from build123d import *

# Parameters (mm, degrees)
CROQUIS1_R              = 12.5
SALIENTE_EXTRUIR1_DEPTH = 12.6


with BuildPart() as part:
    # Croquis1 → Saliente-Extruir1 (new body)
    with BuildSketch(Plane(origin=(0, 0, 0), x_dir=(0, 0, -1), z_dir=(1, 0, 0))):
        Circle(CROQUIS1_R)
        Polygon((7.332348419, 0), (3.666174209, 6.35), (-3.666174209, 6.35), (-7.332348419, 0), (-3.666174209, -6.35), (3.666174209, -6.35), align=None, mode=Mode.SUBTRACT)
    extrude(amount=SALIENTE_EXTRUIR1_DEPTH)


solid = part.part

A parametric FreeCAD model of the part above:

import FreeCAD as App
import Part
import Sketcher
Q = App.Units.Quantity

doc = App.newDocument("Part")
params = doc.addObject("Spreadsheet::Sheet", "Params")
for row, (alias, value) in enumerate([
    ("sketch1_diameter", "25 mm"),
    ("pad1_length", "12.6 mm"),
], start=1):
    params.set(f"A{row}", alias)
    params.set(f"B{row}", "=" + value)
    params.setAlias(f"B{row}", alias)

body = doc.addObject("PartDesign::Body", "Body")

sketch1 = body.newObject("Sketcher::SketchObject", "Sketch")
sketch1.AttachmentSupport = (doc.getObject("YZ_Plane"), [""])
sketch1.MapMode = "FlatFace"
sketch1.addGeometry(Part.Circle(App.Vector(0, 0, 0), App.Vector(0, 0, 1), 12.5), False)
sketch1.addGeometry(Part.LineSegment(App.Vector(6.35, -3.666174, 0), App.Vector(0, -7.332348, 0)), False)
sketch1.addGeometry(Part.LineSegment(App.Vector(0, -7.332348, 0), App.Vector(-6.35, -3.666174, 0)), False)
sketch1.addGeometry(Part.LineSegment(App.Vector(-6.35, -3.666174, 0), App.Vector(-6.35, 3.666174, 0)), False)
sketch1.addGeometry(Part.LineSegment(App.Vector(-6.35, 3.666174, 0), App.Vector(0, 7.332348, 0)), False)
sketch1.addGeometry(Part.LineSegment(App.Vector(0, 7.332348, 0), App.Vector(6.35, 3.666174, 0)), False)
sketch1.addGeometry(Part.LineSegment(App.Vector(6.35, 3.666174, 0), App.Vector(6.35, -3.666174, 0)), False)
sketch1.addConstraint(Sketcher.Constraint("Coincident", 1, 2, 2, 1))
sketch1.addConstraint(Sketcher.Constraint("Coincident", 2, 2, 3, 1))
sketch1.addConstraint(Sketcher.Constraint("Coincident", 3, 2, 4, 1))
sketch1.addConstraint(Sketcher.Constraint("Coincident", 4, 2, 5, 1))
sketch1.addConstraint(Sketcher.Constraint("Coincident", 5, 2, 6, 1))
sketch1.addConstraint(Sketcher.Constraint("Coincident", 6, 2, 1, 1))
sketch1.addConstraint(Sketcher.Constraint("Vertical", 3))
sketch1.addConstraint(Sketcher.Constraint("Vertical", 6))
sketch1.addConstraint(Sketcher.Constraint("Coincident", 0, 3, -1, 1))
sketch1.addConstraint(Sketcher.Constraint("Symmetric", 1, 2, 4, 2, -1, 1))
sketch1.addConstraint(Sketcher.Constraint("Symmetric", 2, 2, 5, 2, -1, 1))
sketch1.addConstraint(Sketcher.Constraint("PointOnObject", 1, 2, -2))
sketch1.addConstraint(Sketcher.Constraint("Parallel", 1, 4))
sketch1.addConstraint(Sketcher.Constraint("Horizontal", 3, 2, 5, 2))
sketch1.addConstraint(Sketcher.Constraint("Diameter", 0, Q("25 mm")))
sketch1.addConstraint(Sketcher.Constraint("Angle", 1, Q("-150 deg")))
sketch1.addConstraint(Sketcher.Constraint("DistanceX", 3, 2, 5, 2, Q("12.7 mm")))
sketch1.addConstraint(Sketcher.Constraint("DistanceY", 3, 1, 3, 2, Q("7.332348 mm")))
sketch1.setExpression("Constraints[14]", "Params.sketch1_diameter")
pad1 = body.newObject("PartDesign::Pad", "Pad")
pad1.Profile = sketch1
pad1.setExpression("Length", "Params.pad1_length")

doc.recompute()
